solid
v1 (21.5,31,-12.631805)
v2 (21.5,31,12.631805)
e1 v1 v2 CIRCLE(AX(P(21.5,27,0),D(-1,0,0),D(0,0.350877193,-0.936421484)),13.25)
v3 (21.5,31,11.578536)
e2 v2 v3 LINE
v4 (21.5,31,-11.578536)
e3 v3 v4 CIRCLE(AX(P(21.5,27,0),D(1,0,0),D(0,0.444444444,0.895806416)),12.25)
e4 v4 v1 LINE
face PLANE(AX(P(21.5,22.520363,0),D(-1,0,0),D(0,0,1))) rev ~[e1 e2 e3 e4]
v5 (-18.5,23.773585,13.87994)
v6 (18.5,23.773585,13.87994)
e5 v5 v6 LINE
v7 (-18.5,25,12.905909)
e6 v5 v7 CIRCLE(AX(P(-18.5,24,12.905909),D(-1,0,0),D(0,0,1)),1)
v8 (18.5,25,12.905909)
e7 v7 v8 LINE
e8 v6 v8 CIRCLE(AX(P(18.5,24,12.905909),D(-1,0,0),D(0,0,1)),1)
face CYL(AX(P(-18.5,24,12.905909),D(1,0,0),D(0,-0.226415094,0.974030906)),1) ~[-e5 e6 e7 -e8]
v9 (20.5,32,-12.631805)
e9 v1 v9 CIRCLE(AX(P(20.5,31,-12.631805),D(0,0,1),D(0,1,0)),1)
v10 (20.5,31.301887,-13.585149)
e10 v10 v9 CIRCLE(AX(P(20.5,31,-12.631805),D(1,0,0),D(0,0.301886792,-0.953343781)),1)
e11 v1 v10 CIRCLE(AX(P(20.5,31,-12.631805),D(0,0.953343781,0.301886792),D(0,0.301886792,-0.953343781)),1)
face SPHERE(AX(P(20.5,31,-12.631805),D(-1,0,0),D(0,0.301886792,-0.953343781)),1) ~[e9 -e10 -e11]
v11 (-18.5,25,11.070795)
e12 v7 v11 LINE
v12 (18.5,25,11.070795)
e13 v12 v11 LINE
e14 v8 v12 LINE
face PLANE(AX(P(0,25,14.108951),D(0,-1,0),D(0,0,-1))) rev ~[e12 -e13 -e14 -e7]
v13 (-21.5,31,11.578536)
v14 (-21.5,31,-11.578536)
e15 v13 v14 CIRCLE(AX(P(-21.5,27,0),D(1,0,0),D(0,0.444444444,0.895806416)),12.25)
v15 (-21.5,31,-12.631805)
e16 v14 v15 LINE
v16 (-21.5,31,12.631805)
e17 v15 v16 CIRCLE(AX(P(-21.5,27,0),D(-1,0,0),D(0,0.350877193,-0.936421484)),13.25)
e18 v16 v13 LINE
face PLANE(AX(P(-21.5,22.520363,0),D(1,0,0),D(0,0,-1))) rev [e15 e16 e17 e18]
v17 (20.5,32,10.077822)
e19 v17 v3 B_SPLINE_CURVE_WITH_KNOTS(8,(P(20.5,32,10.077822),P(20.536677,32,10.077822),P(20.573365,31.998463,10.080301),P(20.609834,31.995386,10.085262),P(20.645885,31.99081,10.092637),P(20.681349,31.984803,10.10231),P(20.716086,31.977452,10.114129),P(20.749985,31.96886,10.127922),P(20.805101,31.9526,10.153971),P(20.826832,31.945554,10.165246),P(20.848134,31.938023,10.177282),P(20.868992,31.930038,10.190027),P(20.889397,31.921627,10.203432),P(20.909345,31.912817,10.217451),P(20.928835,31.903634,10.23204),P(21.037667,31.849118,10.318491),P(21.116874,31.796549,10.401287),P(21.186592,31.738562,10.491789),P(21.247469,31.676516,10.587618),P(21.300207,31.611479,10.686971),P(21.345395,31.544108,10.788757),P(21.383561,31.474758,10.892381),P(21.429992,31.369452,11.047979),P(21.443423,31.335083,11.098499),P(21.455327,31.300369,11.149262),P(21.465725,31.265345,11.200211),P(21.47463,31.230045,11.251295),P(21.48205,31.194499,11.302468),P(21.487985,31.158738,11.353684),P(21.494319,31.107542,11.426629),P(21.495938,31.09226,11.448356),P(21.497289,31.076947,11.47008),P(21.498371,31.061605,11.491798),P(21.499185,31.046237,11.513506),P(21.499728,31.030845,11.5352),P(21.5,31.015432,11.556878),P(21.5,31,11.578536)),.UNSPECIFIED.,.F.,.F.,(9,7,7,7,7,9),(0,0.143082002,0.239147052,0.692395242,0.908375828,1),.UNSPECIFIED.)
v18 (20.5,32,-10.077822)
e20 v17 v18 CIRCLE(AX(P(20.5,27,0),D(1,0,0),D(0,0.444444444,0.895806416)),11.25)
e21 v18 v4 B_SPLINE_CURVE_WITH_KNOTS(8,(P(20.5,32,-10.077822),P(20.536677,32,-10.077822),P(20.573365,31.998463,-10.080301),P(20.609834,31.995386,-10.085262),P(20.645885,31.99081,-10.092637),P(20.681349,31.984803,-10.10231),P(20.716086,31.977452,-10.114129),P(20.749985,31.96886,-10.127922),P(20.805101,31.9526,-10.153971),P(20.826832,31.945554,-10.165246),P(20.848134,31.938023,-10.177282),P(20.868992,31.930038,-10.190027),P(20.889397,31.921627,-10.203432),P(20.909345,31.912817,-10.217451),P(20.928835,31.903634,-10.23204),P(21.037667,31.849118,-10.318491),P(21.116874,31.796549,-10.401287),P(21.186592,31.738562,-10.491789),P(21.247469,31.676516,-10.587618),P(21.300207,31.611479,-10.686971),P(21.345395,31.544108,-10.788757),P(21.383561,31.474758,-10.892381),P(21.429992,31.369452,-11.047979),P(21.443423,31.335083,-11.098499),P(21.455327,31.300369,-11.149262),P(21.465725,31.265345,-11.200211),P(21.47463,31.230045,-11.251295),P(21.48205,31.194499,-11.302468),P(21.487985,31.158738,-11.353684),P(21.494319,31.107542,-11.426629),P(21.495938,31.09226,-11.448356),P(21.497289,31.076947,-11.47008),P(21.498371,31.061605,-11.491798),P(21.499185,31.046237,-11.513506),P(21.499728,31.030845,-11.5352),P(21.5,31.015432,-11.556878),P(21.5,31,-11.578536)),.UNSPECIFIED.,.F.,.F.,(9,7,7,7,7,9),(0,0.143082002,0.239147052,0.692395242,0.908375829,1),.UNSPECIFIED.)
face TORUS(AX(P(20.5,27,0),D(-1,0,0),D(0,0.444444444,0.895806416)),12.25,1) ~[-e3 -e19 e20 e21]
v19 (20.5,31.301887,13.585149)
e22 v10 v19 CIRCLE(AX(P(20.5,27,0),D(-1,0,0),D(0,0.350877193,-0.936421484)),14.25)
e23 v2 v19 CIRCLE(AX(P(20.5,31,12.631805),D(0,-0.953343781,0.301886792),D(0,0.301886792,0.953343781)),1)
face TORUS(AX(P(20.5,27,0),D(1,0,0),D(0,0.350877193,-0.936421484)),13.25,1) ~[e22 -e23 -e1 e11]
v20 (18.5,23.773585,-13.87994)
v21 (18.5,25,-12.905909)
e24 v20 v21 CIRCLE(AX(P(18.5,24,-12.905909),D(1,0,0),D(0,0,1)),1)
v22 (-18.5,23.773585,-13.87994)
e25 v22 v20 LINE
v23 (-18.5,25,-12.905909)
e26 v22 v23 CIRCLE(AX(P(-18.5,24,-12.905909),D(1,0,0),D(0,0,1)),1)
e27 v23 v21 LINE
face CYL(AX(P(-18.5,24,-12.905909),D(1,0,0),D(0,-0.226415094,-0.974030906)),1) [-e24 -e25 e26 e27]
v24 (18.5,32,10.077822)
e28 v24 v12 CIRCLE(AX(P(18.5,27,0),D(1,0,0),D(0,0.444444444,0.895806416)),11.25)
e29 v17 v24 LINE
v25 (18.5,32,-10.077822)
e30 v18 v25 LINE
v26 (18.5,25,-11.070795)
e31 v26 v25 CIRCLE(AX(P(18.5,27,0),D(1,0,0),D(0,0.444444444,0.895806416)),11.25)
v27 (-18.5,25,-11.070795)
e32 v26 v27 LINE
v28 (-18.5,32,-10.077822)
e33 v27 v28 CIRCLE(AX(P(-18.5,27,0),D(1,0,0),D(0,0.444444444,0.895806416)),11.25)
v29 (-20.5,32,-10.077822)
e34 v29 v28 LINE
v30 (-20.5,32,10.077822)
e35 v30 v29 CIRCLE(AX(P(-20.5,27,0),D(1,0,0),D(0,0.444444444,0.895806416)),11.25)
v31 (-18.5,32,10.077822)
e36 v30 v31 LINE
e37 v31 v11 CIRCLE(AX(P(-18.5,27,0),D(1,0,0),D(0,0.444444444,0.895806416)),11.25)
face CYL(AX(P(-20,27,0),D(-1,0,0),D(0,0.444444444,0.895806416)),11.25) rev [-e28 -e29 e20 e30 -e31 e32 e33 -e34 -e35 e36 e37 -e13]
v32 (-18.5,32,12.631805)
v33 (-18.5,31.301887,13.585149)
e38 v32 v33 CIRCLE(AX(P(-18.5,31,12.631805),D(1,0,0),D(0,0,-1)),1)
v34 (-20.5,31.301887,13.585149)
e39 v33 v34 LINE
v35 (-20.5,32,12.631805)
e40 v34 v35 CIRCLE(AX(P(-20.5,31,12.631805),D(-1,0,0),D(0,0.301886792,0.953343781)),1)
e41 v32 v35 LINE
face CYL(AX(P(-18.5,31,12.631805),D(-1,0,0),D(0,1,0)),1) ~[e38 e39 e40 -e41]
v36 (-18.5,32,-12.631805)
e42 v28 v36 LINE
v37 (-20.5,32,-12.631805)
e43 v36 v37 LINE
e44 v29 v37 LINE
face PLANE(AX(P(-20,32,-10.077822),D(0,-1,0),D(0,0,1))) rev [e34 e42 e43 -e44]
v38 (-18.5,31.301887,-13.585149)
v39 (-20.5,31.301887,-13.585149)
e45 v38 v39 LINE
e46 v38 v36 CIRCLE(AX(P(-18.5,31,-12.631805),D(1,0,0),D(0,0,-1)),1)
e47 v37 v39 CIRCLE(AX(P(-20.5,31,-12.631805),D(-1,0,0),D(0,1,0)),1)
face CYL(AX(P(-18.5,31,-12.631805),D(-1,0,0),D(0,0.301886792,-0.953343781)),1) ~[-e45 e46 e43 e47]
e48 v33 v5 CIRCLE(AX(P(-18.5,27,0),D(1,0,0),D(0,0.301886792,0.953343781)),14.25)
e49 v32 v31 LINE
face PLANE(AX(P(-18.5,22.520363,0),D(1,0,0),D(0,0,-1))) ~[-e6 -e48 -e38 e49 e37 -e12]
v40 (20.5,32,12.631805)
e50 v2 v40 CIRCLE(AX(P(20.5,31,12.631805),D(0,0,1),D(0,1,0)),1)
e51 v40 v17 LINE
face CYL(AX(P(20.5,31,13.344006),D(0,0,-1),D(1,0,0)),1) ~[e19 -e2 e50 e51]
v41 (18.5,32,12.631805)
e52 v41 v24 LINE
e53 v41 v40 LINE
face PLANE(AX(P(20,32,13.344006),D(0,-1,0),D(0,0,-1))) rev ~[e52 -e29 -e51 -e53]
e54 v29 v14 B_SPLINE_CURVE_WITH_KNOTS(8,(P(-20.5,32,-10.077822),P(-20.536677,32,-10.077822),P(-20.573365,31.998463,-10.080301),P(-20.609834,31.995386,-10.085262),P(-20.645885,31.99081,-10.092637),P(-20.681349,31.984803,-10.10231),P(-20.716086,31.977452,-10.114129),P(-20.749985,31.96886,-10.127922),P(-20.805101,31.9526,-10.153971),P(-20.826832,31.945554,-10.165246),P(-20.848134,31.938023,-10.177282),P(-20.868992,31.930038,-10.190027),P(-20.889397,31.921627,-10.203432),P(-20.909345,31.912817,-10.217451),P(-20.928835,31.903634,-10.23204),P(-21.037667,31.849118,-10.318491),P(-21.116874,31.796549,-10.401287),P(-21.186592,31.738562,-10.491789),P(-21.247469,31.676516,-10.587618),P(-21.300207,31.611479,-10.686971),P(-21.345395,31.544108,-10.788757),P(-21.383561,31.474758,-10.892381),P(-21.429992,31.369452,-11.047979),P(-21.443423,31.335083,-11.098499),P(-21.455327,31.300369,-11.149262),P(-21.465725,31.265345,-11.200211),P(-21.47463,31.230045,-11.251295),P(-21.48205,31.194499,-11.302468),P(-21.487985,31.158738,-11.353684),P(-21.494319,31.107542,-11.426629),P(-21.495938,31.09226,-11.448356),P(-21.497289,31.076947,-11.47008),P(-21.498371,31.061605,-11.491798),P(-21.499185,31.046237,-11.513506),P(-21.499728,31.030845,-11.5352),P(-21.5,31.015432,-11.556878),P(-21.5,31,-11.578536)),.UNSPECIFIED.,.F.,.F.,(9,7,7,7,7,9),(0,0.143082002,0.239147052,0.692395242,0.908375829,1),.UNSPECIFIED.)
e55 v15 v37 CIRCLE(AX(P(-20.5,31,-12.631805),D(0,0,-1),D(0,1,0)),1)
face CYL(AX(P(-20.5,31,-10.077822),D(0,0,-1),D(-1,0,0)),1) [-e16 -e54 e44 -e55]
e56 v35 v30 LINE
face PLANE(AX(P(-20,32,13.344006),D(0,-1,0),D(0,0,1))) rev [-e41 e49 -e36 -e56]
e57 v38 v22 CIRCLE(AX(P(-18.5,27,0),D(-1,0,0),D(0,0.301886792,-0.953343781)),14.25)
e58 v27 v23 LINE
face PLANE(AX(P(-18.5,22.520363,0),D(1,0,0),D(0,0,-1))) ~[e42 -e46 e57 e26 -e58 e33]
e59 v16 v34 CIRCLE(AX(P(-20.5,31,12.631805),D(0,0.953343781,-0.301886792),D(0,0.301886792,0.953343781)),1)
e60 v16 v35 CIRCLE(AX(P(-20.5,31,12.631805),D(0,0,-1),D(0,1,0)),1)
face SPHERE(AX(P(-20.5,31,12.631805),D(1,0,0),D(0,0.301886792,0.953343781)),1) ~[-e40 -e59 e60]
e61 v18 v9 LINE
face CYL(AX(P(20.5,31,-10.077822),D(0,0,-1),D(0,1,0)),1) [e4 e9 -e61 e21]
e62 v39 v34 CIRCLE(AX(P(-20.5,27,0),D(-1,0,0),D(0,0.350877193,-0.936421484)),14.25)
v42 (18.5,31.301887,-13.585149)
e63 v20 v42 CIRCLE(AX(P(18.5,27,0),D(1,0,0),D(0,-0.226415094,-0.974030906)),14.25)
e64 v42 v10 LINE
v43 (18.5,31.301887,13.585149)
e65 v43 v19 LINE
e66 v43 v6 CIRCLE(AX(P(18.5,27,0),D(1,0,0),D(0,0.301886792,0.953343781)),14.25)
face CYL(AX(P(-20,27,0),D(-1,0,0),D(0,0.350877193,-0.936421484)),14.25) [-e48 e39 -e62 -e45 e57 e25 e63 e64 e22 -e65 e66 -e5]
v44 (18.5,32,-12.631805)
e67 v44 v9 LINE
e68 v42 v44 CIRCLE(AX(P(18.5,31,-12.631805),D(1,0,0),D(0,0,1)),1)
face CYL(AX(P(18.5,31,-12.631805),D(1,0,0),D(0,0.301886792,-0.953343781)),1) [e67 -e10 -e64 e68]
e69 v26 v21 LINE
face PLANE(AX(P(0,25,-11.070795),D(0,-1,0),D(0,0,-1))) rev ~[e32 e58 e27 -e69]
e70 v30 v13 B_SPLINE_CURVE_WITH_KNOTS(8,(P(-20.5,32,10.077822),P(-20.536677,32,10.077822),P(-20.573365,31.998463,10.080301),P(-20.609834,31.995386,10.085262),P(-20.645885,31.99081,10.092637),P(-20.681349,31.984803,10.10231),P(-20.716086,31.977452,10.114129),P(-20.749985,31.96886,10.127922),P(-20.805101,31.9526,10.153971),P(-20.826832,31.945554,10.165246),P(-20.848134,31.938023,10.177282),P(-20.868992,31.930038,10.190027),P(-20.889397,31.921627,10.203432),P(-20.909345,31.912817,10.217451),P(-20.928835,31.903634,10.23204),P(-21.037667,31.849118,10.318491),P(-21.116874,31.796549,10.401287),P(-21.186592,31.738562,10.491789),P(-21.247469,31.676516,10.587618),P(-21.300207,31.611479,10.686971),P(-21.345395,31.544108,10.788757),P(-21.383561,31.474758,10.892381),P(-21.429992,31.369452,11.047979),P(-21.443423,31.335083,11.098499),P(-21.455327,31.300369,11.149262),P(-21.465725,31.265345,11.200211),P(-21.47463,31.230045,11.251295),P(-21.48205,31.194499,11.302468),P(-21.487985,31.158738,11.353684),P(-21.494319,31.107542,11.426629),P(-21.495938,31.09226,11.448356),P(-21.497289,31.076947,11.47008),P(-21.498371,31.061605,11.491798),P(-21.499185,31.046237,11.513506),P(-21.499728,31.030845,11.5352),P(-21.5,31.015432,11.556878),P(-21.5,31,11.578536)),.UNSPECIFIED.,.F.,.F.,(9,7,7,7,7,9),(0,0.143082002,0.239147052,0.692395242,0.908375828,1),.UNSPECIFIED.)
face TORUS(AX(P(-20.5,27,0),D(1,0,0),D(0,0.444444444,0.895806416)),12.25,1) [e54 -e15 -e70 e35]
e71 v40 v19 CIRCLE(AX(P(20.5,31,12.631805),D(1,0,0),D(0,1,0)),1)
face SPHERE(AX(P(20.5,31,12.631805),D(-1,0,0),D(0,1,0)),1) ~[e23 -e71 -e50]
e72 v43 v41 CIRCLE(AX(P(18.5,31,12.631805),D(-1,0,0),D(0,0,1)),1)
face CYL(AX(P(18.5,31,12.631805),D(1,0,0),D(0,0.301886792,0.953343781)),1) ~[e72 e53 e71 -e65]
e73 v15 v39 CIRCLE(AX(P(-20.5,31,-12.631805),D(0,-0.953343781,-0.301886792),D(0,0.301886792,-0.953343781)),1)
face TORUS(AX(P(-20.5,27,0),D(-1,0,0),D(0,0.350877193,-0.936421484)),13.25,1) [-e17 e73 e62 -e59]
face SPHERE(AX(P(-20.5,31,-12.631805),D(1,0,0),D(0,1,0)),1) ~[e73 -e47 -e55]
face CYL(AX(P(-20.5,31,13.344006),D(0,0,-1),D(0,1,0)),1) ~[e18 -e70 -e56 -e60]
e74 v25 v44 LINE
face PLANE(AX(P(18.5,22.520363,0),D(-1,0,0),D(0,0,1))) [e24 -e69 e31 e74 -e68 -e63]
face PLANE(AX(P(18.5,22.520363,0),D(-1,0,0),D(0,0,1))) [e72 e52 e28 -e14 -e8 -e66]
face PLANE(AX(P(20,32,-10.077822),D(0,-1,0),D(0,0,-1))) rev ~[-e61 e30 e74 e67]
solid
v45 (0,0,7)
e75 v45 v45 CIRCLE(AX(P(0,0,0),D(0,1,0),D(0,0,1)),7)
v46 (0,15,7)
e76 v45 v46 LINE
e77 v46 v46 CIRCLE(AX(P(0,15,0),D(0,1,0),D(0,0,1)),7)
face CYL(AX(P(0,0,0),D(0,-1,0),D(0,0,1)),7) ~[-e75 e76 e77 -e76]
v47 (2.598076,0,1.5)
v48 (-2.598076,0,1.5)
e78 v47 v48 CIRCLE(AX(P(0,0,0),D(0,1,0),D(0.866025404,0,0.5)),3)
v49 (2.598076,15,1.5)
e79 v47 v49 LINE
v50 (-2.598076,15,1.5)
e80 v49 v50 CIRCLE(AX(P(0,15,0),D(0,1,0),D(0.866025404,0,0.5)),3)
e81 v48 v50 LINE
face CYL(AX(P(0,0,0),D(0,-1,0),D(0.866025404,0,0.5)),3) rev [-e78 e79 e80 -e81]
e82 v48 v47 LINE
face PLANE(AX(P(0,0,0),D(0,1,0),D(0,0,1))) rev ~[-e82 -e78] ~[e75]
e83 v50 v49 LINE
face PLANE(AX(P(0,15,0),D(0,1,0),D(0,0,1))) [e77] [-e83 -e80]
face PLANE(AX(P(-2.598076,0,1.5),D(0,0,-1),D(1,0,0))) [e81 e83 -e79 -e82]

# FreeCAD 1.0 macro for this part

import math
import FreeCAD as App
import Part
import Sketcher
from FreeCAD import Vector
Q = App.Units.Quantity


def edges_at(feature, points):
    """Names of the edges that pass closest to the given points."""
    edges = feature.Shape.Edges
    near = lambda p: min(range(len(edges)), key=lambda i: edges[i].distToShape(Part.Vertex(*p))[0])
    return sorted({f"Edge{near(p) + 1}" for p in points})

doc = App.newDocument("Part")
body = doc.addObject("PartDesign::Body", "Body")

# Sketch on XZ plane
sketch1 = body.newObject("Sketcher::SketchObject", "Sketch")
sketch1.AttachmentSupport = (doc.getObject("XZ_Plane"), [""])
sketch1.MapMode = "FlatFace"
sketch1.addGeometry([
    Part.Circle(Vector(0, 0, 0), Vector(0, 0, 1), 7),
    Part.LineSegment(Vector(2.6, 1.5, 0), Vector(-2.6, 1.5, 0)),
    Part.ArcOfCircle(Part.Circle(Vector(0, 0, 0), Vector(0, 0, 1), 3), math.radians(150), math.radians(390)),
], False)
sketch1.addConstraint([
    Sketcher.Constraint("Coincident", 1, 1, 2, 2),
    Sketcher.Constraint("Coincident", 2, 1, 1, 2),
    Sketcher.Constraint("Horizontal", 1),
    Sketcher.Constraint("Coincident", 0, 3, -1, 1),
    Sketcher.Constraint("Coincident", 2, 3, -1, 1),
    Sketcher.Constraint("Diameter", 0, Q("14 mm")),
    Sketcher.Constraint("Radius", 2, Q("3 mm")),
    Sketcher.Constraint("DistanceY", -1, 1, 1, 1, Q("1.5 mm")),
])
pad1 = body.newObject("PartDesign::Pad", "Pad")
pad1.Profile = sketch1
pad1.Length = 15
pad1.Reversed = True
body2 = doc.addObject("PartDesign::Body", "Body001")

# Sketch on YZ plane
sketch2 = body2.newObject("Sketcher::SketchObject", "Sketch001")
sketch2.AttachmentSupport = (doc.getObject("YZ_Plane001"), [""])
sketch2.MapMode = "FlatFace"
sketch2.addGeometry([
    Part.LineSegment(Vector(25, 11.1, 0), Vector(25, 14.1, 0)),
    Part.ArcOfCircle(Part.Circle(Vector(27, 0, 0), Vector(0, 0, 1), 14.3), math.radians(98), math.radians(262)),
    Part.LineSegment(Vector(25, -14.1, 0), Vector(25, -11.1, 0)),
    Part.ArcOfCircle(Part.Circle(Vector(27, 0, 0), Vector(0, 0, 1), 11.2), math.radians(100), math.radians(260)),
], False)
sketch2.addConstraint([
    Sketcher.Constraint("Coincident", 0, 2, 1, 1),
    Sketcher.Constraint("Coincident", 1, 2, 2, 1),
    Sketcher.Constraint("Coincident", 2, 2, 3, 2),
    Sketcher.Constraint("Coincident", 3, 1, 0, 1),
    Sketcher.Constraint("Vertical", 0),
    Sketcher.Constraint("Vertical", 2),
    Sketcher.Constraint("Coincident", 3, 3, 1, 3),
    Sketcher.Constraint("Symmetric", 0, 2, 1, 2, -1),
    Sketcher.Constraint("Radius", 1, Q("14.25 mm")),
    Sketcher.Constraint("Radius", 3, Q("11.25 mm")),
    Sketcher.Constraint("DistanceX", -1, 1, 1, 3, Q("27 mm")),
    Sketcher.Constraint("DistanceX", -1, 1, 0, 2, Q("25 mm")),
])
pad2 = body2.newObject("PartDesign::Pad", "Pad001")
pad2.Profile = sketch2
pad2.Length = 40
pad2.Midplane = True

# Sketch on YZ plane
sketch3 = body2.newObject("Sketcher::SketchObject", "Sketch002")
sketch3.AttachmentSupport = (doc.getObject("YZ_Plane001"), [""])
sketch3.MapMode = "FlatFace"
sketch3.AttachmentOffset = App.Placement(Vector(0, 0, 20), App.Rotation())
sketch3.addGeometry([
    Part.LineSegment(Vector(32, 10.1, 0), Vector(32, 13.3, 0)),
    Part.ArcOfCircle(Part.Circle(Vector(27, 0, 0), Vector(0, 0, 1), 14.2), math.radians(69), math.radians(291)),
    Part.LineSegment(Vector(32, -13.3, 0), Vector(32, -10.1, 0)),
    Part.ArcOfCircle(Part.Circle(Vector(27, 0, 0), Vector(0, 0, 1), 11.2), math.radians(64), math.radians(296)),
], False)
sketch3.addConstraint([
    Sketcher.Constraint("Coincident", 0, 2, 1, 1),
    Sketcher.Constraint("Coincident", 1, 2, 2, 1),
    Sketcher.Constraint("Coincident", 2, 2, 3, 2),
    Sketcher.Constraint("Coincident", 3, 1, 0, 1),
    Sketcher.Constraint("Vertical", 0),
    Sketcher.Constraint("Vertical", 2),
    Sketcher.Constraint("Coincident", 3, 3, 1, 3),
    Sketcher.Constraint("Symmetric", 0, 2, 1, 2, -1),
    Sketcher.Constraint("Radius", 1, Q("14.25 mm")),
    Sketcher.Constraint("Radius", 3, Q("11.25 mm")),
    Sketcher.Constraint("DistanceX", -1, 1, 1, 3, Q("27 mm")),
    Sketcher.Constraint("DistanceX", -1, 1, 0, 2, Q("32 mm")),
])
pad3 = body2.newObject("PartDesign::Pad", "Pad002")
pad3.Profile = sketch3
pad3.Length = 3
pad3.Midplane = True
doc.recompute()

mirrored = body2.newObject("PartDesign::Mirrored", "Mirrored")
mirrored.Originals = [pad3]
mirrored.MirrorPlane = (doc.getObject("YZ_Plane001"), [""])
body2.Tip = mirrored
doc.recompute()

fillet = body2.newObject("PartDesign::Fillet", "Fillet")
fillet.Base = (mirrored, edges_at(mirrored, [
    (0, 25, -14.109),
    (0, 25, 14.109),
    (20, 32, 13.344),
    (20, 32, -13.344),
    (21.5, 15.75, 0),
    (21.5, 32, 11.711),
    (21.5, 12.75, 0),
    (21.5, 32, -11.711),
    (-21.5, 15.75, 0),
    (-21.5, 12.75, 0),
    (-20, 32, -13.344),
    (-21.5, 32, -11.711),
    (-21.5, 32, 11.711),
    (-20, 32, 13.344),
]))
fillet.Radius = 1

doc.recompute()
